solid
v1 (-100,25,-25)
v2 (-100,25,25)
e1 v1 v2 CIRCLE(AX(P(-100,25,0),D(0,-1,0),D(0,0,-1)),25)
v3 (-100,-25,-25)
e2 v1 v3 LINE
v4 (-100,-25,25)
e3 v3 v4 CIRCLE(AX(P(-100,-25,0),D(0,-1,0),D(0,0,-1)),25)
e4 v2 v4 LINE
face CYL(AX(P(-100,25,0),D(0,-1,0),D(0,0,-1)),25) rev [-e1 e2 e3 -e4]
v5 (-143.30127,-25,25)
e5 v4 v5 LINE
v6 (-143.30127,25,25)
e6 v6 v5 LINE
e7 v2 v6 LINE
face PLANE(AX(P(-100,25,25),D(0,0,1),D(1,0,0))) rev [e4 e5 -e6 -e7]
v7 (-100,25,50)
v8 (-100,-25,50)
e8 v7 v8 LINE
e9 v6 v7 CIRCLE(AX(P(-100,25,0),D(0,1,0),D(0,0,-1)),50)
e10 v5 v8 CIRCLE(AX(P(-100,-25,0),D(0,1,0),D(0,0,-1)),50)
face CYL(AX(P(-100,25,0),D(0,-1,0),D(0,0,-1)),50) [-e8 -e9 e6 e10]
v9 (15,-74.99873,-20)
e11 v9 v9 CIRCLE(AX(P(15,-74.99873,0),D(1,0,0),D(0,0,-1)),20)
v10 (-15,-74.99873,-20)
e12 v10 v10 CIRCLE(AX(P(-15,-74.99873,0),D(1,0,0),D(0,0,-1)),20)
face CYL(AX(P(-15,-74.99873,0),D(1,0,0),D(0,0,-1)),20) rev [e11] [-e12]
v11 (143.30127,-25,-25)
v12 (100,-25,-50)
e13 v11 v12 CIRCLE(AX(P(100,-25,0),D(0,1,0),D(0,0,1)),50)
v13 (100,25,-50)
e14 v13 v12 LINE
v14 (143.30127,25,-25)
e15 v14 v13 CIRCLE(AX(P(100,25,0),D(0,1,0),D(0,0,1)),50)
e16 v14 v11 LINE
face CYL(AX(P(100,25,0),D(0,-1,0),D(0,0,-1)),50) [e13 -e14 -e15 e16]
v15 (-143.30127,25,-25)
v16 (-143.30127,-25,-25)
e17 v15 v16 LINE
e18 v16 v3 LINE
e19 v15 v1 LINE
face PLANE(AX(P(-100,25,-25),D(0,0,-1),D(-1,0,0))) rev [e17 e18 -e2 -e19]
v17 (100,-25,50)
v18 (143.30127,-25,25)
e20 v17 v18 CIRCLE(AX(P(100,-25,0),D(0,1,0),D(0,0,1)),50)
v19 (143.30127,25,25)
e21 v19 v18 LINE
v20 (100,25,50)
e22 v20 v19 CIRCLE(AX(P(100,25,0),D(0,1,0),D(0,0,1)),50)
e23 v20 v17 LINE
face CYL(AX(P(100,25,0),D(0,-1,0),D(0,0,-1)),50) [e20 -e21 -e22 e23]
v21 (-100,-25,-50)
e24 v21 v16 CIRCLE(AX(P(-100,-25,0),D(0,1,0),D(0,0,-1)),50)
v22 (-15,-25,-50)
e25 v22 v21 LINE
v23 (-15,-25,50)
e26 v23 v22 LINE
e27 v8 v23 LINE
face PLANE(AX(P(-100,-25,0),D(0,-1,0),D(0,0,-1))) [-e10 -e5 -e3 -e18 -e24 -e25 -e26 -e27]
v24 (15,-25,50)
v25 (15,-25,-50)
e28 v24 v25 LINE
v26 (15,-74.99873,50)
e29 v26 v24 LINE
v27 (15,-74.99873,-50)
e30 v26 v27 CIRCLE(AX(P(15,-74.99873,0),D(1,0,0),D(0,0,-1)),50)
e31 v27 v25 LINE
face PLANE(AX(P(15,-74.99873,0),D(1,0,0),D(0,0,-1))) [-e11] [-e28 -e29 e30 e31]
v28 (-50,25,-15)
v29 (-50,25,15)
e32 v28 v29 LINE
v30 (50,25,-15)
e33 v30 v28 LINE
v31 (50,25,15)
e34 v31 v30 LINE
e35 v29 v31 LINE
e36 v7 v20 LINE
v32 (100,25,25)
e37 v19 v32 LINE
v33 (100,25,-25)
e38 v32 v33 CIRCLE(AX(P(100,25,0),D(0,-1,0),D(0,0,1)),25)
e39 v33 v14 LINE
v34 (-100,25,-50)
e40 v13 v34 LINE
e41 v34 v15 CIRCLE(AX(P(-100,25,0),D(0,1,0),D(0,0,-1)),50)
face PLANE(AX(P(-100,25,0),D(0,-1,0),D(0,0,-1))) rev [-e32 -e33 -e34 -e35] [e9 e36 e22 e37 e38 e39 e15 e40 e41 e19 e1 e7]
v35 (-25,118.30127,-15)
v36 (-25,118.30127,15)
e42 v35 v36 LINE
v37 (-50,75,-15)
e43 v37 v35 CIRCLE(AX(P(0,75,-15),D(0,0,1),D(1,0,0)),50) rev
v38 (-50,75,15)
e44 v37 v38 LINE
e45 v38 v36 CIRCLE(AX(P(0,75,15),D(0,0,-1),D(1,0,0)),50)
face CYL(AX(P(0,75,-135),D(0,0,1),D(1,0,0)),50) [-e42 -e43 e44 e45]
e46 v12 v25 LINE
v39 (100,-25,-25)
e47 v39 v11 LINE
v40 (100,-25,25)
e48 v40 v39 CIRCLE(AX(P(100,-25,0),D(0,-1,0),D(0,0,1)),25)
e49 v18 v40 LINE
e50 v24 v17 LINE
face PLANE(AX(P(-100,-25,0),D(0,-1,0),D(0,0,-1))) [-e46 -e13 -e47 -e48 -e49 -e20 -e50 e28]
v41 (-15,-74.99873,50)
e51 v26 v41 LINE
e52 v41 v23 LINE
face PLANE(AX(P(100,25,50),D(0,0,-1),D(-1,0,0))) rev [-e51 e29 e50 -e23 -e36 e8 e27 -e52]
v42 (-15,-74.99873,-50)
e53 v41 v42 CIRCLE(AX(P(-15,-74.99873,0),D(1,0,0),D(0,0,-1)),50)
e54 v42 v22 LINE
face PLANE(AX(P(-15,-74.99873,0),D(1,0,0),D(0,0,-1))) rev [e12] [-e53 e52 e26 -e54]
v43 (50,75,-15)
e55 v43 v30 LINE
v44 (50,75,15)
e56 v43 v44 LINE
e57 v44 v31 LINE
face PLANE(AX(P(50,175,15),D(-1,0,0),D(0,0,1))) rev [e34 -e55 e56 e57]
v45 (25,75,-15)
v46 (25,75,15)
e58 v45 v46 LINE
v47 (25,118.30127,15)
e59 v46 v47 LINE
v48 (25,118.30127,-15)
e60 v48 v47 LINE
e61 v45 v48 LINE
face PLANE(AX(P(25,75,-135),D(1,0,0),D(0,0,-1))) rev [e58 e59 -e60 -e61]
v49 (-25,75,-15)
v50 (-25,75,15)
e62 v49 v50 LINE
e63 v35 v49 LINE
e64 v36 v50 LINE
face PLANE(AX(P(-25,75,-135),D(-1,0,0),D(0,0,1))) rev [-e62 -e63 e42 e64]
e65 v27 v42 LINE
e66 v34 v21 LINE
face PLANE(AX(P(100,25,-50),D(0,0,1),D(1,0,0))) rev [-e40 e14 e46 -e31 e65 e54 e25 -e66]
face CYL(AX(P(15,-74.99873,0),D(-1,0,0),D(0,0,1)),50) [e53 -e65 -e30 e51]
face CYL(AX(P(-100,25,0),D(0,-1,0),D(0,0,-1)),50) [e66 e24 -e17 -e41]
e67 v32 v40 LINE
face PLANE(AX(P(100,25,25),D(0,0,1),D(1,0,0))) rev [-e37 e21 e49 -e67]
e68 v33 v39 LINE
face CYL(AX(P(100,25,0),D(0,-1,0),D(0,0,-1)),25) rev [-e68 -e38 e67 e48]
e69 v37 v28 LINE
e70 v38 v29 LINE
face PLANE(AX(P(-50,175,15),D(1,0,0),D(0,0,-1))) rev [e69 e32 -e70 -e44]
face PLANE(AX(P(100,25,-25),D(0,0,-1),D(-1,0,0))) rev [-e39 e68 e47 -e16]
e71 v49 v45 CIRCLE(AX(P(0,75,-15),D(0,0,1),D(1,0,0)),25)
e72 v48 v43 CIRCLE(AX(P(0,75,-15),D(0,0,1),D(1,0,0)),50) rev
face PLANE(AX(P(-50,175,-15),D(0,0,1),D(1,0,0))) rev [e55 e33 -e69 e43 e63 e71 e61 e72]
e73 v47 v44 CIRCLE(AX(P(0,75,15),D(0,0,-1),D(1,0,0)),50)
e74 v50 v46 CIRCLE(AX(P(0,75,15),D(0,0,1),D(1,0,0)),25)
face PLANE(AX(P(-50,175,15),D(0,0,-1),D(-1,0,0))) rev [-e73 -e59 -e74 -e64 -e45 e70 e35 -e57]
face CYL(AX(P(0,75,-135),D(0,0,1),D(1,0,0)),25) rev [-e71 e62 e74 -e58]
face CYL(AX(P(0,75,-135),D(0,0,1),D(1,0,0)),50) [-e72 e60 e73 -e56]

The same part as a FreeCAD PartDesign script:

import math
import FreeCAD as App
import Part
import Sketcher
Q = App.Units.Quantity

doc = App.newDocument("Part")
params = doc.addObject("Spreadsheet::Sheet", "Params")
for row, (alias, value) in enumerate([
    ("sketch1_radius", "50 mm"),
    ("sketch1_radius2", "25 mm"),
    ("sketch1_width", "200 mm"),
    ("pad1_length", "50 mm"),
    ("sketch2_width", "100 mm"),
    ("sketch2_height", "30 mm"),
    ("pad2_length", "150 mm"),
    ("sketch3_radius", "25 mm"),
    ("sketch3_radius2", "50 mm"),
    ("pocket1_length", "150 mm"),
    ("sketch4_radius", "50 mm"),
    ("pad3_length", "30 mm"),
    ("sketch5_diameter", "40 mm"),
    ("pocket2_length", "30 mm"),
], start=1):
    params.set(f"A{row}", alias)
    params.set(f"B{row}", "=" + value)
    params.setAlias(f"B{row}", alias)

body = doc.addObject("PartDesign::Body", "Body")

# Sketch on XZ plane
sketch1 = body.newObject("Sketcher::SketchObject", "Sketch")
sketch1.AttachmentSupport = (doc.getObject("XZ_Plane"), [""])
sketch1.MapMode = "FlatFace"
sketch1.addGeometry(Part.LineSegment(App.Vector(100, -50, 0), App.Vector(-100, -50, 0)), False)
sketch1.addGeometry(Part.ArcOfCircle(Part.Circle(App.Vector(-100, 0, 0), App.Vector(0, 0, 1), 50), math.radians(-150), math.radians(-90)), False)
sketch1.addGeometry(Part.LineSegment(App.Vector(-143, -25, 0), App.Vector(-100, -25, 0)), False)
sketch1.addGeometry(Part.ArcOfCircle(Part.Circle(App.Vector(-100, 0, 0), App.Vector(0, 0, 1), 25), math.radians(-90), math.radians(90)), False)
sketch1.addGeometry(Part.LineSegment(App.Vector(-100, 25, 0), App.Vector(-143, 25, 0)), False)
sketch1.addGeometry(Part.ArcOfCircle(Part.Circle(App.Vector(-100, 0, 0), App.Vector(0, 0, 1), 50), math.radians(90), math.radians(150)), False)
sketch1.addGeometry(Part.LineSegment(App.Vector(-100, 50, 0), App.Vector(100, 50, 0)), False)
sketch1.addGeometry(Part.ArcOfCircle(Part.Circle(App.Vector(100, 0, 0), App.Vector(0, 0, 1), 50), math.radians(30), math.radians(90)), False)
sketch1.addGeometry(Part.LineSegment(App.Vector(143, 25, 0), App.Vector(100, 25, 0)), False)
sketch1.addGeometry(Part.ArcOfCircle(Part.Circle(App.Vector(100, 0, 0), App.Vector(0, 0, 1), 25), math.radians(90), math.radians(270)), False)
sketch1.addGeometry(Part.LineSegment(App.Vector(100, -25, 0), App.Vector(143, -25, 0)), False)
sketch1.addGeometry(Part.ArcOfCircle(Part.Circle(App.Vector(100, 0, 0), App.Vector(0, 0, 1), 50), math.radians(-90), math.radians(-30)), False)
sketch1.addConstraint(Sketcher.Constraint("Tangent", 0, 2, 1, 2))
sketch1.addConstraint(Sketcher.Constraint("Coincident", 1, 1, 2, 1))
sketch1.addConstraint(Sketcher.Constraint("Tangent", 2, 2, 3, 1))
sketch1.addConstraint(Sketcher.Constraint("Tangent", 3, 2, 4, 1))
sketch1.addConstraint(Sketcher.Constraint("Coincident", 4, 2, 5, 2))
sketch1.addConstraint(Sketcher.Constraint("Tangent", 5, 1, 6, 1))
sketch1.addConstraint(Sketcher.Constraint("Tangent", 6, 2, 7, 2))
sketch1.addConstraint(Sketcher.Constraint("Coincident", 7, 1, 8, 1))
sketch1.addConstraint(Sketcher.Constraint("Tangent", 8, 2, 9, 1))
sketch1.addConstraint(Sketcher.Constraint("Tangent", 9, 2, 10, 1))
sketch1.addConstraint(Sketcher.Constraint("Coincident", 10, 2, 11, 2))
sketch1.addConstraint(Sketcher.Constraint("Tangent", 11, 1, 0, 1))
sketch1.addConstraint(Sketcher.Constraint("Horizontal", 0))
sketch1.addConstraint(Sketcher.Constraint("Horizontal", 2))
sketch1.addConstraint(Sketcher.Constraint("Horizontal", 4))
sketch1.addConstraint(Sketcher.Constraint("Horizontal", 6))
sketch1.addConstraint(Sketcher.Constraint("Horizontal", 8))
sketch1.addConstraint(Sketcher.Constraint("Horizontal", 10))
sketch1.addConstraint(Sketcher.Constraint("Coincident", 3, 3, 1, 3))
sketch1.addConstraint(Sketcher.Constraint("Coincident", 5, 3, 1, 3))
sketch1.addConstraint(Sketcher.Constraint("Coincident", 9, 3, 7, 3))
sketch1.addConstraint(Sketcher.Constraint("Coincident", 11, 3, 7, 3))
sketch1.addConstraint(Sketcher.Constraint("Equal", 1, 5))
sketch1.addConstraint(Sketcher.Constraint("Equal", 5, 7))
sketch1.addConstraint(Sketcher.Constraint("Equal", 3, 9))
sketch1.addConstraint(Sketcher.Constraint("Symmetric", 1, 3, 7, 3, -1, 1))
sketch1.addConstraint(Sketcher.Constraint("Radius", 1, Q("50 mm")))
sketch1.addConstraint(Sketcher.Constraint("Radius", 3, Q("25 mm")))
sketch1.addConstraint(Sketcher.Constraint("DistanceX", 0, 2, 0, 1, Q("200 mm")))
sketch1.setExpression("Constraints[26]", "Params.sketch1_radius")
sketch1.setExpression("Constraints[27]", "Params.sketch1_radius2")
sketch1.setExpression("Constraints[28]", "Params.sketch1_width")
pad1 = body.newObject("PartDesign::Pad", "Pad")
pad1.Profile = sketch1
pad1.setExpression("Length", "Params.pad1_length")
pad1.Midplane = True

# Sketch on XZ plane
sketch2 = body.newObject("Sketcher::SketchObject", "Sketch001")
sketch2.AttachmentSupport = (doc.getObject("XZ_Plane"), [""])
sketch2.MapMode = "FlatFace"
sketch2.AttachmentOffset = App.Placement(App.Vector(0, 0, -25), App.Rotation())
sketch2.addGeometry(Part.LineSegment(App.Vector(-50, -15, 0), App.Vector(-50, 15, 0)), False)
sketch2.addGeometry(Part.LineSegment(App.Vector(-50, 15, 0), App.Vector(50, 15, 0)), False)
sketch2.addGeometry(Part.LineSegment(App.Vector(50, 15, 0), App.Vector(50, -15, 0)), False)
sketch2.addGeometry(Part.LineSegment(App.Vector(50, -15, 0), App.Vector(-50, -15, 0)), False)
sketch2.addConstraint(Sketcher.Constraint("Coincident", 0, 2, 1, 1))
sketch2.addConstraint(Sketcher.Constraint("Coincident", 1, 2, 2, 1))
sketch2.addConstraint(Sketcher.Constraint("Coincident", 2, 2, 3, 1))
sketch2.addConstraint(Sketcher.Constraint("Coincident", 3, 2, 0, 1))
sketch2.addConstraint(Sketcher.Constraint("Vertical", 0))
sketch2.addConstraint(Sketcher.Constraint("Horizontal", 1))
sketch2.addConstraint(Sketcher.Constraint("Vertical", 2))
sketch2.addConstraint(Sketcher.Constraint("Horizontal", 3))
sketch2.addConstraint(Sketcher.Constraint("Symmetric", 0, 2, 2, 2, -1, 1))
sketch2.addConstraint(Sketcher.Constraint("DistanceX", 1, 1, 1, 2, Q("100 mm")))
sketch2.addConstraint(Sketcher.Constraint("DistanceY", 0, 1, 0, 2, Q("30 mm")))
sketch2.setExpression("Constraints[9]", "Params.sketch2_width")
sketch2.setExpression("Constraints[10]", "Params.sketch2_height")
pad2 = body.newObject("PartDesign::Pad", "Pad001")
pad2.Profile = sketch2
pad2.setExpression("Length", "Params.pad2_length")
pad2.Reversed = True

# Sketch on XY plane
sketch3 = body.newObject("Sketcher::SketchObject", "Sketch002")
sketch3.AttachmentSupport = (doc.getObject("XY_Plane"), [""])
sketch3.MapMode = "FlatFace"
sketch3.AttachmentOffset = App.Placement(App.Vector(0, 0, 15), App.Rotation())
sketch3.addGeometry(Part.LineSegment(App.Vector(-25, 118, 0), App.Vector(-25, 75, 0)), False)
sketch3.addGeometry(Part.ArcOfCircle(Part.Circle(App.Vector(0, 75, 0), App.Vector(0, 0, 1), 25), math.radians(180), math.radians(360)), False)
sketch3.addGeometry(Part.LineSegment(App.Vector(25, 75, 0), App.Vector(25, 118, 0)), False)
sketch3.addGeometry(Part.ArcOfCircle(Part.Circle(App.Vector(0, 75, 0), App.Vector(0, 0, 1), 50), math.radians(0), math.radians(60)), False)
sketch3.addGeometry(Part.LineSegment(App.Vector(50, 75, 0), App.Vector(50, 175, 0)), False)
sketch3.addGeometry(Part.LineSegment(App.Vector(50, 175, 0), App.Vector(-50, 175, 0)), False)
sketch3.addGeometry(Part.LineSegment(App.Vector(-50, 175, 0), App.Vector(-50, 75, 0)), False)
sketch3.addGeometry(Part.ArcOfCircle(Part.Circle(App.Vector(0, 75, 0), App.Vector(0, 0, 1), 50), math.radians(120), math.radians(180)), False)
sketch3.addConstraint(Sketcher.Constraint("Tangent", 0, 2, 1, 1))
sketch3.addConstraint(Sketcher.Constraint("Tangent", 1, 2, 2, 1))
sketch3.addConstraint(Sketcher.Constraint("Coincident", 2, 2, 3, 2))
sketch3.addConstraint(Sketcher.Constraint("Tangent", 3, 1, 4, 1))
sketch3.addConstraint(Sketcher.Constraint("Coincident", 4, 2, 5, 1))
sketch3.addConstraint(Sketcher.Constraint("Coincident", 5, 2, 6, 1))
sketch3.addConstraint(Sketcher.Constraint("Tangent", 6, 2, 7, 2))
sketch3.addConstraint(Sketcher.Constraint("Coincident", 7, 1, 0, 1))
sketch3.addConstraint(Sketcher.Constraint("Vertical", 0))
sketch3.addConstraint(Sketcher.Constraint("Vertical", 2))
sketch3.addConstraint(Sketcher.Constraint("Vertical", 4))
sketch3.addConstraint(Sketcher.Constraint("Horizontal", 5))
sketch3.addConstraint(Sketcher.Constraint("Vertical", 6))
sketch3.addConstraint(Sketcher.Constraint("Coincident", 3, 3, 1, 3))
sketch3.addConstraint(Sketcher.Constraint("Coincident", 7, 3, 1, 3))
sketch3.addConstraint(Sketcher.Constraint("Equal", 3, 7))
sketch3.addConstraint(Sketcher.Constraint("PointOnObject", 1, 3, -2))
sketch3.addConstraint(Sketcher.Constraint("Equal", 5, 4))
sketch3.addConstraint(Sketcher.Constraint("Radius", 1, Q("25 mm")))
sketch3.addConstraint(Sketcher.Constraint("Radius", 3, Q("50 mm")))
sketch3.addConstraint(Sketcher.Constraint("DistanceY", -1, 1, 1, 3, Q("75 mm")))
sketch3.setExpression("Constraints[18]", "Params.sketch3_radius")
sketch3.setExpression("Constraints[19]", "Params.sketch3_radius2")
pocket1 = body.newObject("PartDesign::Pocket", "Pocket")
pocket1.Profile = sketch3
pocket1.setExpression("Length", "Params.pocket1_length")

# Sketch on YZ plane
sketch4 = body.newObject("Sketcher::SketchObject", "Sketch003")
sketch4.AttachmentSupport = (doc.getObject("YZ_Plane"), [""])
sketch4.MapMode = "FlatFace"
sketch4.addGeometry(Part.LineSegment(App.Vector(-25, 50, 0), App.Vector(-75, 50, 0)), False)
sketch4.addGeometry(Part.ArcOfCircle(Part.Circle(App.Vector(-75, 0, 0), App.Vector(0, 0, 1), 50), math.radians(90), math.radians(270)), False)
sketch4.addGeometry(Part.LineSegment(App.Vector(-75, -50, 0), App.Vector(-25, -50, 0)), False)
sketch4.addGeometry(Part.LineSegment(App.Vector(-25, -50, 0), App.Vector(-25, 50, 0)), False)
sketch4.addConstraint(Sketcher.Constraint("Tangent", 0, 2, 1, 1))
sketch4.addConstraint(Sketcher.Constraint("Tangent", 1, 2, 2, 1))
sketch4.addConstraint(Sketcher.Constraint("Coincident", 2, 2, 3, 1))
sketch4.addConstraint(Sketcher.Constraint("Coincident", 3, 2, 0, 1))
sketch4.addConstraint(Sketcher.Constraint("Horizontal", 0))
sketch4.addConstraint(Sketcher.Constraint("Horizontal", 2))
sketch4.addConstraint(Sketcher.Constraint("Vertical", 3))
sketch4.addConstraint(Sketcher.Constraint("PointOnObject", 1, 3, -1))
sketch4.addConstraint(Sketcher.Constraint("Radius", 1, Q("50 mm")))
sketch4.addConstraint(Sketcher.Constraint("DistanceX", 2, 2, -1, 1, Q("25 mm")))
sketch4.addConstraint(Sketcher.Constraint("DistanceX", 0, 2, 0, 1, Q("49.99873 mm")))
sketch4.setExpression("Constraints[8]", "Params.sketch4_radius")
pad3 = body.newObject("PartDesign::Pad", "Pad002")
pad3.Profile = sketch4
pad3.setExpression("Length", "Params.pad3_length")
pad3.Midplane = True

# Sketch on YZ plane
sketch5 = body.newObject("Sketcher::SketchObject", "Sketch004")
sketch5.AttachmentSupport = (doc.getObject("YZ_Plane"), [""])
sketch5.MapMode = "FlatFace"
sketch5.AttachmentOffset = App.Placement(App.Vector(0, 0, 15), App.Rotation())
sketch5.addGeometry(Part.Circle(App.Vector(-75, 0, 0), App.Vector(0, 0, 1), 20), False)
sketch5.addConstraint(Sketcher.Constraint("PointOnObject", 0, 3, -1))
sketch5.addConstraint(Sketcher.Constraint("Diameter", 0, Q("40 mm")))
sketch5.addConstraint(Sketcher.Constraint("DistanceX", 0, 3, -1, 1, Q("74.99873 mm")))
sketch5.setExpression("Constraints[1]", "Params.sketch5_diameter")
pocket2 = body.newObject("PartDesign::Pocket", "Pocket001")
pocket2.Profile = sketch5
pocket2.setExpression("Length", "Params.pocket2_length")

doc.recompute()
